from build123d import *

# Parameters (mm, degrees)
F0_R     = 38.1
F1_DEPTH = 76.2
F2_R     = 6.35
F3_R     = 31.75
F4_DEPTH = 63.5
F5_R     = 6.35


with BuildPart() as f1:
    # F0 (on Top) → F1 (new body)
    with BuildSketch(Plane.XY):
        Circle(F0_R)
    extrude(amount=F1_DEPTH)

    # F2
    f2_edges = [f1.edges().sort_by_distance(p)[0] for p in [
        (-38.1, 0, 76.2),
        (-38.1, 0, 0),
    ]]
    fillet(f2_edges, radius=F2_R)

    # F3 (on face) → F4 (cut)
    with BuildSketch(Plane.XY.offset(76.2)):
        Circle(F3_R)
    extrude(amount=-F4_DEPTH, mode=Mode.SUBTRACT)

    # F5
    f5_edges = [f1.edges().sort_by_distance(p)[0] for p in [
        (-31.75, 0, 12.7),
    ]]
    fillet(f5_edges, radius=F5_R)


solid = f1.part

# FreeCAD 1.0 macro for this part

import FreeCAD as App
import Part
import Sketcher
from FreeCAD import Vector
Q = App.Units.Quantity


def edges_at(feature, points):
    """Names of the edges that pass closest to the given points."""
    edges = feature.Shape.Edges
    near = lambda p: min(range(len(edges)), key=lambda i: edges[i].distToShape(Part.Vertex(*p))[0])
    return sorted({f"Edge{near(p) + 1}" for p in points})

doc = App.newDocument("Part")
body = doc.addObject("PartDesign::Body", "Body")

# Sketch on XY plane
sketch1 = body.newObject("Sketcher::SketchObject", "Sketch")
sketch1.AttachmentSupport = (doc.getObject("XY_Plane"), [""])
sketch1.MapMode = "FlatFace"
sketch1.addGeometry(Part.Circle(Vector(0, 0, 0), Vector(0, 0, 1), 38.1), False)
sketch1.addConstraint([
    Sketcher.Constraint("Coincident", 0, 3, -1, 1),
    Sketcher.Constraint("Diameter", 0, Q("3 in")),
])
pad1 = body.newObject("PartDesign::Pad", "Pad")
pad1.Profile = sketch1
pad1.Length = Q("3 in")
doc.recompute()

fillet = body.newObject("PartDesign::Fillet", "Fillet")
fillet.Base = (pad1, edges_at(pad1, [(-38.1, 0, 76.2), (-38.1, 0, 0)]))
fillet.Radius = Q("0.25 in")

# Sketch on XY plane
sketch2 = body.newObject("Sketcher::SketchObject", "Sketch001")
sketch2.AttachmentSupport = (doc.getObject("XY_Plane"), [""])
sketch2.MapMode = "FlatFace"
sketch2.AttachmentOffset = App.Placement(Vector(0, 0, 3 * 25.4), App.Rotation())
sketch2.addGeometry(Part.Circle(Vector(0, 0, 0), Vector(0, 0, 1), 31.75), False)
sketch2.addConstraint([
    Sketcher.Constraint("Coincident", 0, 3, -1, 1),
    Sketcher.Constraint("Diameter", 0, Q("2.5 in")),
])
pocket1 = body.newObject("PartDesign::Pocket", "Pocket")
pocket1.Profile = sketch2
pocket1.Length = Q("2.5 in")
doc.recompute()

fillet2 = body.newObject("PartDesign::Fillet", "Fillet001")
fillet2.Base = (pocket1, edges_at(pocket1, [(-31.75, 0, 12.7)]))
fillet2.Radius = Q("0.25 in")

doc.recompute()
